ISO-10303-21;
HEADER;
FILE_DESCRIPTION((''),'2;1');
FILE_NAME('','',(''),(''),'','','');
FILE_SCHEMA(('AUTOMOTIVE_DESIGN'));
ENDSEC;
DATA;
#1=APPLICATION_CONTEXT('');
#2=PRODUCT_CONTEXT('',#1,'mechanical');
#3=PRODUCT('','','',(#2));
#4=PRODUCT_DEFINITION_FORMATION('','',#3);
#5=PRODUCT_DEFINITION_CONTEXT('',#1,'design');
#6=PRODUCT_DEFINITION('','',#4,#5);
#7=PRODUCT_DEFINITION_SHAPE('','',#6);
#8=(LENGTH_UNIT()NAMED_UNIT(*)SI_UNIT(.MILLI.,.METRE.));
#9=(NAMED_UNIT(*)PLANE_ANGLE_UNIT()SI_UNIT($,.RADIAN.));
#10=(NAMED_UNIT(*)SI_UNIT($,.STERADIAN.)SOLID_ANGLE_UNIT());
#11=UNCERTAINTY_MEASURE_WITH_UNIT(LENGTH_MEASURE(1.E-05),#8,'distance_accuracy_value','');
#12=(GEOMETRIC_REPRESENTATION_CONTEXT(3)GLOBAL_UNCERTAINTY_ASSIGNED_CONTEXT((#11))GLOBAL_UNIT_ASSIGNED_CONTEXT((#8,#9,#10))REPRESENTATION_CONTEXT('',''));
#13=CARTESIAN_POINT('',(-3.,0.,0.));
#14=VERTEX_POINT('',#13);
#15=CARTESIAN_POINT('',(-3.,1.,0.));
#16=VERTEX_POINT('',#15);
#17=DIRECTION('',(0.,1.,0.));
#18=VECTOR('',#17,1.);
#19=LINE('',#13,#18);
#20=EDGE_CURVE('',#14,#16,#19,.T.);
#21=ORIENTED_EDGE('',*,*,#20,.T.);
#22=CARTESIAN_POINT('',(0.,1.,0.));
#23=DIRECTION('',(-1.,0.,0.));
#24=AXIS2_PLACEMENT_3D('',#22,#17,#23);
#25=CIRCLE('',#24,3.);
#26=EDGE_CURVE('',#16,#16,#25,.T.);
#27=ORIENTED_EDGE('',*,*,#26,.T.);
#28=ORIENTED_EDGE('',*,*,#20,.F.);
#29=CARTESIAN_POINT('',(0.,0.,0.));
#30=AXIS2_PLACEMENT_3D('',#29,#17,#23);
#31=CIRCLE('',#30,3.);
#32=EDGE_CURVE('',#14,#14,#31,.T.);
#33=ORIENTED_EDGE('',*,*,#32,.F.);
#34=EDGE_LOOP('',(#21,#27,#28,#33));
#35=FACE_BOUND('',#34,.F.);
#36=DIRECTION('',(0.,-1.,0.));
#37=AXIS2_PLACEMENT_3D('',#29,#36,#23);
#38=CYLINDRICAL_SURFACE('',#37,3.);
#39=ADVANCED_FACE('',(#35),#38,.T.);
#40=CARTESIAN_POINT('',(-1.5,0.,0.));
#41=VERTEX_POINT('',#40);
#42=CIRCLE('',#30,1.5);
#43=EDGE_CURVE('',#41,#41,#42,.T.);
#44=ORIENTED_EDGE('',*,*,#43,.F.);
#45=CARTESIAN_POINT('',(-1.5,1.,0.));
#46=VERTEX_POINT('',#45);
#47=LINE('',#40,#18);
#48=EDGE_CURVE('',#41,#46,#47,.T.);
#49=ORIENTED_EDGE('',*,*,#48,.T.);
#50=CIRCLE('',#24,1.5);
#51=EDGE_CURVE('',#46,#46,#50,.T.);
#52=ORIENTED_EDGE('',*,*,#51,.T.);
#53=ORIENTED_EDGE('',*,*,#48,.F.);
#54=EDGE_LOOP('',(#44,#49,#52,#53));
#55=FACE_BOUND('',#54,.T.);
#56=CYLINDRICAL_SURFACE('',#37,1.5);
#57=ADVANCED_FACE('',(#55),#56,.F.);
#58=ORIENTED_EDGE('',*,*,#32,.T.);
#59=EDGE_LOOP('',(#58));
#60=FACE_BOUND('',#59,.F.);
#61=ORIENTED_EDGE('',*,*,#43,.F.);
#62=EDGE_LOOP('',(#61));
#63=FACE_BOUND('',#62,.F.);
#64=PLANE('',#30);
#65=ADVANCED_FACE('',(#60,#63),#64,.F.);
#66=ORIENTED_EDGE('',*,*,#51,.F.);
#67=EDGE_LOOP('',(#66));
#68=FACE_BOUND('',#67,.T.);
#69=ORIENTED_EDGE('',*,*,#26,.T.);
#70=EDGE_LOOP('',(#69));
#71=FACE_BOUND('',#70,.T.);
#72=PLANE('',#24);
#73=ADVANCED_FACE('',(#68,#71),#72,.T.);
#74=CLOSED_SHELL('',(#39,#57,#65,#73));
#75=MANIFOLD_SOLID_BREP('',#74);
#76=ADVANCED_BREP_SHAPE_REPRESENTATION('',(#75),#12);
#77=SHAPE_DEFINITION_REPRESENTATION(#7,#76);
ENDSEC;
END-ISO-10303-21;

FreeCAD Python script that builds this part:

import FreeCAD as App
import Part
import Sketcher
Q = App.Units.Quantity

doc = App.newDocument("Part")
body = doc.addObject("PartDesign::Body", "Body")

sketch1 = body.newObject("Sketcher::SketchObject", "Sketch")
sketch1.AttachmentSupport = (doc.getObject("XZ_Plane"), [""])
sketch1.MapMode = "FlatFace"
sketch1.addGeometry([
    Part.Circle(App.Vector(0, 0, 0), App.Vector(0, 0, 1), 3),
    Part.Circle(App.Vector(0, 0, 0), App.Vector(0, 0, 1), 1.5),
], False)
sketch1.addConstraint([
    Sketcher.Constraint("Coincident", 0, 3, -1, 1),
    Sketcher.Constraint("Coincident", 1, 3, -1, 1),
    Sketcher.Constraint("Diameter", 0, Q("6 mm")),
    Sketcher.Constraint("Diameter", 1, Q("3 mm")),
])
pad1 = body.newObject("PartDesign::Pad", "Pad")
pad1.Profile = sketch1
pad1.Length = 1
pad1.Reversed = True

doc.recompute()
